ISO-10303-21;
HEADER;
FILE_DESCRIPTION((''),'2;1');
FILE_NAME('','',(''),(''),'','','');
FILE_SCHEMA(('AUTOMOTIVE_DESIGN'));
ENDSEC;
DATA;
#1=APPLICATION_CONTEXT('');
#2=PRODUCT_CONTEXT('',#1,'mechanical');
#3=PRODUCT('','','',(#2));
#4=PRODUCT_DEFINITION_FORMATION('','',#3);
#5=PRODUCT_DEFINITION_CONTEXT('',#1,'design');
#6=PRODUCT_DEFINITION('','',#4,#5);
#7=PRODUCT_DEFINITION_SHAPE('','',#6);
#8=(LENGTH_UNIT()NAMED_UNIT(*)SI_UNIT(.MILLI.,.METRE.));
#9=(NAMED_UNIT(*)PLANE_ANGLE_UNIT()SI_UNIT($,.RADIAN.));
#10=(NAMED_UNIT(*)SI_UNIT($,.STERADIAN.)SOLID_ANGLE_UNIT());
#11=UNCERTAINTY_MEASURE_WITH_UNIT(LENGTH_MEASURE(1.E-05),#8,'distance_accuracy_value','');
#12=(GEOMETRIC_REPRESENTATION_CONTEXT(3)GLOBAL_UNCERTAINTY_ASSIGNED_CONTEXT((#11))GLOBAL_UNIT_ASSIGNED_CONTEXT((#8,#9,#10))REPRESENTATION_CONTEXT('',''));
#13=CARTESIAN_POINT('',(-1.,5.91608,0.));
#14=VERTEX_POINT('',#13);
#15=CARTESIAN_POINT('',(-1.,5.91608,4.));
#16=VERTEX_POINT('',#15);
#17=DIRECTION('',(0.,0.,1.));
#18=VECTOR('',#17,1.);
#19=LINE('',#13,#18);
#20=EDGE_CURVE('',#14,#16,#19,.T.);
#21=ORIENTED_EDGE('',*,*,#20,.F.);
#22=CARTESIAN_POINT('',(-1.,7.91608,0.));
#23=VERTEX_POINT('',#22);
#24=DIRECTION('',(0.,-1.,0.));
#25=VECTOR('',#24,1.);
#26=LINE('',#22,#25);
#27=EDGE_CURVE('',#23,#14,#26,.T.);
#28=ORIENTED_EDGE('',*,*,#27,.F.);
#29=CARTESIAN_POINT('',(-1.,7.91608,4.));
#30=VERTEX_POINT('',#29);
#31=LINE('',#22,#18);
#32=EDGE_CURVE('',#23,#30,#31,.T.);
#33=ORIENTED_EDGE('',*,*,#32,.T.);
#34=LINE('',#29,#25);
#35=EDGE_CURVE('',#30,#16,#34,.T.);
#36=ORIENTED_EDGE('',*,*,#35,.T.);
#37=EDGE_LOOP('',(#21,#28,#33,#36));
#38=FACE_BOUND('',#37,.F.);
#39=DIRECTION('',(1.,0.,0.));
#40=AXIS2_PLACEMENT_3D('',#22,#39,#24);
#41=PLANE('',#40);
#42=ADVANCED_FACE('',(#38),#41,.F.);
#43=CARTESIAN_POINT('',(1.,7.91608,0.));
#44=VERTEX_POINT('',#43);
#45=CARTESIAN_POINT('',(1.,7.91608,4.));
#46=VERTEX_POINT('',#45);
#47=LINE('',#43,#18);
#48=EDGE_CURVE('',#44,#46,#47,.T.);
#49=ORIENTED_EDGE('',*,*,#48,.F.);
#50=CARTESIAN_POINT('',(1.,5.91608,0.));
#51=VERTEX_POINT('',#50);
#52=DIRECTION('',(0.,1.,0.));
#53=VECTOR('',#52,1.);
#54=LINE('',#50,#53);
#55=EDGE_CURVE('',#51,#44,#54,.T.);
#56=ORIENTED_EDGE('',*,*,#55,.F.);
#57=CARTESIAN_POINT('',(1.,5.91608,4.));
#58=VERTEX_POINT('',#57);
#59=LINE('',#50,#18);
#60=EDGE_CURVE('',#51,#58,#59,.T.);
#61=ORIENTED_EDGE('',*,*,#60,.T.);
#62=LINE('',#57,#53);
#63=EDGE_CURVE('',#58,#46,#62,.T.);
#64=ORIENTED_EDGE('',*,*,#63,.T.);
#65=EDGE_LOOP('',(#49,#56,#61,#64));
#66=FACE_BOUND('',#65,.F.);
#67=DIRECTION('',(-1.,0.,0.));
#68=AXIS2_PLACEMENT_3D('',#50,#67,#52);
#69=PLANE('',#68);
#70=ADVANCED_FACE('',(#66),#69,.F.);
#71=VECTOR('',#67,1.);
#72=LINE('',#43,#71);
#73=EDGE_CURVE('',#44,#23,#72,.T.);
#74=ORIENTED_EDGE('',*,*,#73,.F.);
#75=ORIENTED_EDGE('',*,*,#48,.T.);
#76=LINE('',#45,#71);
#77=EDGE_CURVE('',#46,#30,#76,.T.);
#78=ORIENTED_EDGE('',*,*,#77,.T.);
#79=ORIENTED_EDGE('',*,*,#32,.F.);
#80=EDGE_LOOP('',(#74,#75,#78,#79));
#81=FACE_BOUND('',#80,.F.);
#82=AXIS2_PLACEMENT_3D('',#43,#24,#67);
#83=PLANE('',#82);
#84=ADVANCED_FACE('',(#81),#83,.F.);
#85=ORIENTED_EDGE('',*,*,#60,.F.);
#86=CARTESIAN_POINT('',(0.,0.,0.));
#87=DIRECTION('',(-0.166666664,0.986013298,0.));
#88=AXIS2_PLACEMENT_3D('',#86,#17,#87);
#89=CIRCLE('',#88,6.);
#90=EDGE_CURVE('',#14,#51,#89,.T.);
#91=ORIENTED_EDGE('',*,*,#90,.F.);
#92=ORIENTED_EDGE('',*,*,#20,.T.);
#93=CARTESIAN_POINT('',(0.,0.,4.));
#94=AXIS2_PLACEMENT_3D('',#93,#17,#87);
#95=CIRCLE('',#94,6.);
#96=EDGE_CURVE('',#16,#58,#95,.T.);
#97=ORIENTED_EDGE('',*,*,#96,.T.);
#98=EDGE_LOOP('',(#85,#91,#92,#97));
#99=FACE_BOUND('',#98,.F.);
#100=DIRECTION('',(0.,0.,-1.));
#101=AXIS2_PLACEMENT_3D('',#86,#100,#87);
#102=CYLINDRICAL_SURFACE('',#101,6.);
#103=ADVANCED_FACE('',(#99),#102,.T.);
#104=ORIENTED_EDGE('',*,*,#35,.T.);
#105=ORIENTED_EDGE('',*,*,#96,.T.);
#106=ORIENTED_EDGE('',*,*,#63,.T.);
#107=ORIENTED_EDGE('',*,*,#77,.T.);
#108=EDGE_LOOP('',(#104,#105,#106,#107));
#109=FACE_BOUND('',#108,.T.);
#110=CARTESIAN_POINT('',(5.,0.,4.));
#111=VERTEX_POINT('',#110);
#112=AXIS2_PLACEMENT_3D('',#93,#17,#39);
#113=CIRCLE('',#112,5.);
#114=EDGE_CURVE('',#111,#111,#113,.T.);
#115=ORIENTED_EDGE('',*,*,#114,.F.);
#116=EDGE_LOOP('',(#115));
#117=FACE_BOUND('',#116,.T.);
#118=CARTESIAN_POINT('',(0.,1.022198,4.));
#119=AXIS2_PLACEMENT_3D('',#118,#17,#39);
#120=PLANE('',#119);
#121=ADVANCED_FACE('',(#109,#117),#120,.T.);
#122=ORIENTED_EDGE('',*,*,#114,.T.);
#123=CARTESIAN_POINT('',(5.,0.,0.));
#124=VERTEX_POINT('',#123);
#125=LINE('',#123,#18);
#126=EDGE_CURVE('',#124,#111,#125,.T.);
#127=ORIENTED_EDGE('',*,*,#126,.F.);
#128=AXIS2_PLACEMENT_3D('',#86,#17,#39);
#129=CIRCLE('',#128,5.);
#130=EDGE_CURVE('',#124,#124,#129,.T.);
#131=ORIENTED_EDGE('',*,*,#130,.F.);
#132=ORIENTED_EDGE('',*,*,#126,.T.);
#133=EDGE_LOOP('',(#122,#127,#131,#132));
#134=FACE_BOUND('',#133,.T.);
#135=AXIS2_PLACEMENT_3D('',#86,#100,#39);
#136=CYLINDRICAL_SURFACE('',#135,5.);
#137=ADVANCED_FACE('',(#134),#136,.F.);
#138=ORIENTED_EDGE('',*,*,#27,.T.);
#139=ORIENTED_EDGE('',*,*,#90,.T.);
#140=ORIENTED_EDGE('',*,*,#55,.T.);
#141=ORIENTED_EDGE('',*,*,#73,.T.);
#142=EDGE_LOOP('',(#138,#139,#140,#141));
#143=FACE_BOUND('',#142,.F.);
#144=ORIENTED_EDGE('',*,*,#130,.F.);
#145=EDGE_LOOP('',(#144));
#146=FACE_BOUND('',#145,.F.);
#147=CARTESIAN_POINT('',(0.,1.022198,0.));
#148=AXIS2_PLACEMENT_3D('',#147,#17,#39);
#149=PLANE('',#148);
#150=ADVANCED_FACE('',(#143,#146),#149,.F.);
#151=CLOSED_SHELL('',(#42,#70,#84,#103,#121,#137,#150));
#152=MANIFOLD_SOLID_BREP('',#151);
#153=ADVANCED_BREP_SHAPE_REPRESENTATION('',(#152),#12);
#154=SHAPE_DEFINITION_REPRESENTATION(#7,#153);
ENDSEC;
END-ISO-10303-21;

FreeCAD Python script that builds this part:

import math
import FreeCAD as App
import Part
import Sketcher
from FreeCAD import Vector

doc = App.newDocument("Part")
body = doc.addObject("PartDesign::Body", "Body")

sketch1 = body.newObject("Sketcher::SketchObject", "Sketch")
sketch1.AttachmentSupport = (doc.getObject("XY_Plane"), [""])
sketch1.MapMode = "FlatFace"
sketch1.addGeometry([
    Part.ArcOfCircle(Part.Circle(Vector(0, 0, 0), Vector(0, 0, 1), 6), math.radians(100), math.radians(440)),
    Part.LineSegment(Vector(1, 5.9, 0), Vector(1, 7.9, 0)),
    Part.LineSegment(Vector(1, 7.9, 0), Vector(-1, 7.9, 0)),
    Part.LineSegment(Vector(-1, 7.9, 0), Vector(-1, 5.9, 0)),
    Part.Circle(Vector(0, 0, 0), Vector(0, 0, 1), 5),
], False)
sketch1.addConstraint([
    Sketcher.Constraint("Coincident", 0, 2, 1, 1),
    Sketcher.Constraint("Coincident", 1, 2, 2, 1),
    Sketcher.Constraint("Coincident", 2, 2, 3, 1),
    Sketcher.Constraint("Coincident", 3, 2, 0, 1),
    Sketcher.Constraint("Vertical", 1),
    Sketcher.Constraint("Horizontal", 2),
    Sketcher.Constraint("Vertical", 3),
    Sketcher.Constraint("Coincident", 0, 3, -1, 1),
    Sketcher.Constraint("Coincident", 4, 3, -1, 1),
    Sketcher.Constraint("Horizontal", 0, 2, 3, 2),
    Sketcher.Constraint("Equal", 2, 1),
    Sketcher.Constraint("Diameter", 4, 10.0),
    Sketcher.Constraint("Radius", 0, 6.0),
    Sketcher.Constraint("DistanceX", 2, 2, 2, 1, 2.0),
])
pad1 = body.newObject("PartDesign::Pad", "Pad")
pad1.Profile = sketch1
pad1.Length = 4

doc.recompute()
